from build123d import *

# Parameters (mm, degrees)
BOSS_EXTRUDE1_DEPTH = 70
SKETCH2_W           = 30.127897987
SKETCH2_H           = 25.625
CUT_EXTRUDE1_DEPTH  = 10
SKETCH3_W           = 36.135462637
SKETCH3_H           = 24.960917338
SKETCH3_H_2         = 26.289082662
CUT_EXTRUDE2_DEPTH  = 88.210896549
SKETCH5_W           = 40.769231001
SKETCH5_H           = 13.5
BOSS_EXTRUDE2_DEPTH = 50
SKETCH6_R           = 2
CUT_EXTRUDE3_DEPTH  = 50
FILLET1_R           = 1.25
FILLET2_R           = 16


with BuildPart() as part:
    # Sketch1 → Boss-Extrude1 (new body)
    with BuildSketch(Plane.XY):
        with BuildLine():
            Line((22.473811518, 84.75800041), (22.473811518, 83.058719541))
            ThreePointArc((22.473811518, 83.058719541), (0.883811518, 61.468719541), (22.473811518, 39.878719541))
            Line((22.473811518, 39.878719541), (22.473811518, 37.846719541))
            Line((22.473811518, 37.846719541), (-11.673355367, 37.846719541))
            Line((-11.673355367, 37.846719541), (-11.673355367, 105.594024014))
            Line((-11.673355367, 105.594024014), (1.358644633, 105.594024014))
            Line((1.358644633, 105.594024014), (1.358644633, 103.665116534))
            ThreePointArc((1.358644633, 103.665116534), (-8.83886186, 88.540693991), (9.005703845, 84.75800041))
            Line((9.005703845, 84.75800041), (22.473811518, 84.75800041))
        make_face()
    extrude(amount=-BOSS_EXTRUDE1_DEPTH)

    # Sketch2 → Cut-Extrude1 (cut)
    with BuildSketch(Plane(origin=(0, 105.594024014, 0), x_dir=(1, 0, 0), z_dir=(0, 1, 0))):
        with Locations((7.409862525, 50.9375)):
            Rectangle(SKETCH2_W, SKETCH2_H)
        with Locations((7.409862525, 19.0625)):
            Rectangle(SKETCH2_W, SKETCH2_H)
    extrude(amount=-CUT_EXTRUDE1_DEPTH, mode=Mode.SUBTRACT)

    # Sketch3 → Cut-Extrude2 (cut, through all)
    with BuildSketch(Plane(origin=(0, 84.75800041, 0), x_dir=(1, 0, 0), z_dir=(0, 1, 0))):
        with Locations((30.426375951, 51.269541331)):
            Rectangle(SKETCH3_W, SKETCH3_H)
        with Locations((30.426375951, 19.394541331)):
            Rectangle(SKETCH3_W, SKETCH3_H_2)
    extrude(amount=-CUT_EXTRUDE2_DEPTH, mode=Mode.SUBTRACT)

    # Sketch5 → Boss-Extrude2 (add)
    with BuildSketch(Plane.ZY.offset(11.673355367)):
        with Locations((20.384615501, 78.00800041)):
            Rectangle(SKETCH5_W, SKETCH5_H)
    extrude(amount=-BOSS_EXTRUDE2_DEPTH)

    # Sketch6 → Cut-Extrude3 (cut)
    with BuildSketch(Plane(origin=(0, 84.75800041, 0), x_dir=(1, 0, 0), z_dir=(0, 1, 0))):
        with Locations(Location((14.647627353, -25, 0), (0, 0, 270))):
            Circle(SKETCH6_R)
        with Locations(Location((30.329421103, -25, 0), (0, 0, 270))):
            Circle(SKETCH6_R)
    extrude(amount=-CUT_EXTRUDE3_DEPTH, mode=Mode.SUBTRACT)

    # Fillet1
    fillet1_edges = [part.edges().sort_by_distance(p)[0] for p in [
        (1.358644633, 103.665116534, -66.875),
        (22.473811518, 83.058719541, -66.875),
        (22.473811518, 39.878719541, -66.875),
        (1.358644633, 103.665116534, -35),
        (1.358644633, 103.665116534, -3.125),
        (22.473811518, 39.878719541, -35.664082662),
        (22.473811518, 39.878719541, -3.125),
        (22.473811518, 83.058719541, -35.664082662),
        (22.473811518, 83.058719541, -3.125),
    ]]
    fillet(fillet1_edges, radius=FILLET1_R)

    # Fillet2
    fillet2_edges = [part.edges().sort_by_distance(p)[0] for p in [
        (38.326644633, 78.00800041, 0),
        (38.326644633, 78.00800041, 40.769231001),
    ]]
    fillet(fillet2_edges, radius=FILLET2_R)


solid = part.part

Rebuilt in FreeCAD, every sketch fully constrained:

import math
import FreeCAD as App
import Part
import Sketcher
Q = App.Units.Quantity


def edges_at(feature, points):
    """Names of the edges that pass closest to the given points."""
    edges = feature.Shape.Edges
    near = lambda p: min(range(len(edges)), key=lambda i: edges[i].distToShape(Part.Vertex(*p))[0])
    return sorted({f"Edge{near(p) + 1}" for p in points})

doc = App.newDocument("Part")
body = doc.addObject("PartDesign::Body", "Body")

# Sketch on XY plane
sketch1 = body.newObject("Sketcher::SketchObject", "Sketch")
sketch1.AttachmentSupport = (doc.getObject("XY_Plane"), [""])
sketch1.MapMode = "FlatFace"
sketch1.addGeometry([
    Part.LineSegment(App.Vector(22.5, 83.1, 0), App.Vector(22.5, 84.8, 0)),  # 0
    Part.LineSegment(App.Vector(22.5, 84.8, 0), App.Vector(9, 84.8, 0)),  # 1
    Part.ArcOfCircle(Part.Circle(App.Vector(1.4, 92.7, 0), App.Vector(0, 0, 1), 11), math.radians(90), math.radians(314)),  # 2
    Part.LineSegment(App.Vector(1.4, 103.7, 0), App.Vector(1.4, 105.6, 0)),  # 3
    Part.LineSegment(App.Vector(1.4, 105.6, 0), App.Vector(-11.7, 105.6, 0)),  # 4
    Part.LineSegment(App.Vector(-11.7, 105.6, 0), App.Vector(-11.7, 37.8, 0)),  # 5
    Part.LineSegment(App.Vector(-11.7, 37.8, 0), App.Vector(22.5, 37.8, 0)),  # 6
    Part.LineSegment(App.Vector(22.5, 37.8, 0), App.Vector(22.5, 39.9, 0)),  # 7
    Part.ArcOfCircle(Part.Circle(App.Vector(22.5, 61.5, 0), App.Vector(0, 0, 1), 21.6), math.radians(90), math.radians(270)),  # 8
], False)
sketch1.addConstraint([
    Sketcher.Constraint("Coincident", 0, 2, 1, 1),
    Sketcher.Constraint("Coincident", 1, 2, 2, 2),
    Sketcher.Constraint("Coincident", 2, 1, 3, 1),
    Sketcher.Constraint("Coincident", 3, 2, 4, 1),
    Sketcher.Constraint("Coincident", 4, 2, 5, 1),
    Sketcher.Constraint("Coincident", 5, 2, 6, 1),
    Sketcher.Constraint("Coincident", 6, 2, 7, 1),
    Sketcher.Constraint("Coincident", 7, 2, 8, 2),
    Sketcher.Constraint("Coincident", 8, 1, 0, 1),
    Sketcher.Constraint("Vertical", 0),
    Sketcher.Constraint("Horizontal", 1),
    Sketcher.Constraint("Vertical", 3),
    Sketcher.Constraint("Horizontal", 4),
    Sketcher.Constraint("Vertical", 5),
    Sketcher.Constraint("Horizontal", 6),
    Sketcher.Constraint("Vertical", 7),
    Sketcher.Constraint("Vertical", 8, 3, 0, 2),
    Sketcher.Constraint("Vertical", 0, 2, 6, 2),
    Sketcher.Constraint("Radius", 2, Q("11 mm")),
    Sketcher.Constraint("Radius", 8, Q("21.59 mm")),
    Sketcher.Constraint("DistanceX", 4, 2, 4, 1, Q("13.032 mm")),
    Sketcher.Constraint("DistanceY", 7, 1, 7, 2, Q("2.032 mm")),
    Sketcher.Constraint("DistanceY", -1, 1, 0, 2, Q("84.758 mm")),
    Sketcher.Constraint("DistanceX", 4, 2, 2, 3, Q("13.032 mm")),
    Sketcher.Constraint("DistanceY", 0, 1, 0, 2, Q("1.699281 mm")),
    Sketcher.Constraint("DistanceX", 1, 2, 1, 1, Q("13.468108 mm")),
    Sketcher.Constraint("DistanceX", 6, 1, 6, 2, Q("34.147167 mm")),
    Sketcher.Constraint("DistanceY", 3, 1, 3, 2, Q("1.928907 mm")),
    Sketcher.Constraint("DistanceX", -1, 1, 8, 3, Q("22.473812 mm")),
])
pad1 = body.newObject("PartDesign::Pad", "Pad")
pad1.Profile = sketch1
pad1.Length = 70
pad1.Reversed = True

# Sketch on XZ plane
sketch2 = body.newObject("Sketcher::SketchObject", "Sketch001")
sketch2.AttachmentSupport = (doc.getObject("XZ_Plane"), [""])
sketch2.MapMode = "FlatFace"
sketch2.AttachmentOffset = App.Placement(App.Vector(0, 0, -105.594024), App.Rotation())
sketch2.addGeometry([
    Part.LineSegment(App.Vector(-8, -64, 0), App.Vector(-8, -38, 0)),  # 0
    Part.LineSegment(App.Vector(-8, -38, 0), App.Vector(22, -38, 0)),  # 1
    Part.LineSegment(App.Vector(22, -38, 0), App.Vector(22, -64, 0)),  # 2
    Part.LineSegment(App.Vector(22, -64, 0), App.Vector(-8, -64, 0)),  # 3
    Part.LineSegment(App.Vector(-8, -32, 0), App.Vector(-8, -6, 0)),  # 4
    Part.LineSegment(App.Vector(-8, -6, 0), App.Vector(22, -6, 0)),  # 5
    Part.LineSegment(App.Vector(22, -6, 0), App.Vector(22, -32, 0)),  # 6
    Part.LineSegment(App.Vector(22, -32, 0), App.Vector(-8, -32, 0)),  # 7
], False)
sketch2.addConstraint([
    Sketcher.Constraint("Coincident", 0, 2, 1, 1),
    Sketcher.Constraint("Coincident", 1, 2, 2, 1),
    Sketcher.Constraint("Coincident", 2, 2, 3, 1),
    Sketcher.Constraint("Coincident", 3, 2, 0, 1),
    Sketcher.Constraint("Coincident", 4, 2, 5, 1),
    Sketcher.Constraint("Coincident", 5, 2, 6, 1),
    Sketcher.Constraint("Coincident", 6, 2, 7, 1),
    Sketcher.Constraint("Coincident", 7, 2, 4, 1),
    Sketcher.Constraint("Vertical", 0),
    Sketcher.Constraint("Horizontal", 1),
    Sketcher.Constraint("Vertical", 2),
    Sketcher.Constraint("Horizontal", 3),
    Sketcher.Constraint("Vertical", 4),
    Sketcher.Constraint("Horizontal", 5),
    Sketcher.Constraint("Vertical", 6),
    Sketcher.Constraint("Horizontal", 7),
    Sketcher.Constraint("Vertical", 3, 2, 4, 2),
    Sketcher.Constraint("Vertical", 2, 2, 5, 2),
    Sketcher.Constraint("Equal", 2, 4),
    Sketcher.Constraint("DistanceY", 3, 2, 4, 2, Q("57.5 mm")),
    Sketcher.Constraint("DistanceY", 0, 1, 0, 2, Q("25.625 mm")),
    Sketcher.Constraint("DistanceY", 2, 2, -1, 1, Q("63.75 mm")),
    Sketcher.Constraint("DistanceX", 1, 1, 1, 2, Q("30.127898 mm")),
    Sketcher.Constraint("DistanceX", -1, 1, 1, 2, Q("22.473812 mm")),
])
pocket1 = body.newObject("PartDesign::Pocket", "Pocket")
pocket1.Profile = sketch2
pocket1.Length = 10
pocket1.Reversed = True

# Sketch on XZ plane
sketch3 = body.newObject("Sketcher::SketchObject", "Sketch002")
sketch3.AttachmentSupport = (doc.getObject("XZ_Plane"), [""])
sketch3.MapMode = "FlatFace"
sketch3.AttachmentOffset = App.Placement(App.Vector(0, 0, -84.758), App.Rotation())
sketch3.addGeometry([
    Part.LineSegment(App.Vector(12, -64, 0), App.Vector(12, -39, 0)),  # 0
    Part.LineSegment(App.Vector(12, -39, 0), App.Vector(48, -39, 0)),  # 1
    Part.LineSegment(App.Vector(48, -39, 0), App.Vector(48, -64, 0)),  # 2
    Part.LineSegment(App.Vector(48, -64, 0), App.Vector(12, -64, 0)),  # 3
    Part.LineSegment(App.Vector(12, -33, 0), App.Vector(12, -6, 0)),  # 4
    Part.LineSegment(App.Vector(12, -6, 0), App.Vector(48, -6, 0)),  # 5
    Part.LineSegment(App.Vector(48, -6, 0), App.Vector(48, -33, 0)),  # 6
    Part.LineSegment(App.Vector(48, -33, 0), App.Vector(12, -33, 0)),  # 7
], False)
sketch3.addConstraint([
    Sketcher.Constraint("Coincident", 0, 2, 1, 1),
    Sketcher.Constraint("Coincident", 1, 2, 2, 1),
    Sketcher.Constraint("Coincident", 2, 2, 3, 1),
    Sketcher.Constraint("Coincident", 3, 2, 0, 1),
    Sketcher.Constraint("Coincident", 4, 2, 5, 1),
    Sketcher.Constraint("Coincident", 5, 2, 6, 1),
    Sketcher.Constraint("Coincident", 6, 2, 7, 1),
    Sketcher.Constraint("Coincident", 7, 2, 4, 1),
    Sketcher.Constraint("Vertical", 0),
    Sketcher.Constraint("Horizontal", 1),
    Sketcher.Constraint("Vertical", 2),
    Sketcher.Constraint("Horizontal", 3),
    Sketcher.Constraint("Vertical", 4),
    Sketcher.Constraint("Horizontal", 5),
    Sketcher.Constraint("Vertical", 6),
    Sketcher.Constraint("Horizontal", 7),
    Sketcher.Constraint("Vertical", 3, 2, 4, 2),
    Sketcher.Constraint("Vertical", 2, 2, 5, 2),
    Sketcher.Constraint("DistanceY", 3, 2, 4, 2, Q("57.5 mm")),
    Sketcher.Constraint("DistanceY", 2, 2, -1, 1, Q("63.75 mm")),
    Sketcher.Constraint("DistanceY", 1, 2, 6, 2, Q("6.25 mm")),
    Sketcher.Constraint("DistanceX", 1, 1, 1, 2, Q("36.135463 mm")),
    Sketcher.Constraint("DistanceY", 0, 1, 0, 2, Q("24.960917 mm")),
    Sketcher.Constraint("DistanceX", -1, 1, 0, 2, Q("12.358645 mm")),
])
pocket2 = body.newObject("PartDesign::Pocket", "Pocket001")
pocket2.Profile = sketch3
pocket2.Type = "ThroughAll"
pocket2.Reversed = True

# Sketch on YZ plane
sketch4 = body.newObject("Sketcher::SketchObject", "Sketch003")
sketch4.AttachmentSupport = (doc.getObject("YZ_Plane"), [""])
sketch4.MapMode = "FlatFace"
sketch4.AttachmentOffset = App.Placement(App.Vector(0, 0, -11.673355), App.Rotation())
sketch4.addGeometry([
    Part.LineSegment(App.Vector(85, 0, 0), App.Vector(71, 0, 0)),
    Part.LineSegment(App.Vector(71, 0, 0), App.Vector(71, 41, 0)),
    Part.LineSegment(App.Vector(71, 41, 0), App.Vector(85, 41, 0)),
    Part.LineSegment(App.Vector(85, 41, 0), App.Vector(85, 0, 0)),
], False)
sketch4.addConstraint([
    Sketcher.Constraint("Coincident", 0, 2, 1, 1),
    Sketcher.Constraint("Coincident", 1, 2, 2, 1),
    Sketcher.Constraint("Coincident", 2, 2, 3, 1),
    Sketcher.Constraint("Coincident", 3, 2, 0, 1),
    Sketcher.Constraint("Horizontal", 0),
    Sketcher.Constraint("Vertical", 1),
    Sketcher.Constraint("Horizontal", 2),
    Sketcher.Constraint("Vertical", 3),
    Sketcher.Constraint("PointOnObject", 0, 2, -1),
    Sketcher.Constraint("DistanceX", 0, 2, 0, 1, Q("13.5 mm")),
    Sketcher.Constraint("DistanceX", -1, 1, 0, 2, Q("71.258 mm")),
    Sketcher.Constraint("DistanceY", 1, 1, 1, 2, Q("40.769231 mm")),
])
pad2 = body.newObject("PartDesign::Pad", "Pad001")
pad2.Profile = sketch4
pad2.Length = 50

# Sketch on XZ plane
sketch5 = body.newObject("Sketcher::SketchObject", "Sketch004")
sketch5.AttachmentSupport = (doc.getObject("XZ_Plane"), [""])
sketch5.MapMode = "FlatFace"
sketch5.AttachmentOffset = App.Placement(App.Vector(0, 0, -84.758), App.Rotation())
sketch5.addGeometry([
    Part.Circle(App.Vector(14.6, 25, 0), App.Vector(0, 0, 1), 2),
    Part.Circle(App.Vector(30.3, 25, 0), App.Vector(0, 0, 1), 2),
], False)
sketch5.addConstraint([
    Sketcher.Constraint("Equal", 0, 1),
    Sketcher.Constraint("Horizontal", 0, 3, 1, 3),
    Sketcher.Constraint("Diameter", 0, Q("4 mm")),
    Sketcher.Constraint("DistanceY", -1, 1, 0, 3, Q("25 mm")),
    Sketcher.Constraint("DistanceX", -1, 1, 1, 3, Q("30.329421 mm")),
    Sketcher.Constraint("DistanceX", -1, 1, 0, 3, Q("14.647627 mm")),
])
pocket3 = body.newObject("PartDesign::Pocket", "Pocket002")
pocket3.Profile = sketch5
pocket3.Length = 50
pocket3.Reversed = True
doc.recompute()

fillet = body.newObject("PartDesign::Fillet", "Fillet")
fillet.Base = (pocket3, edges_at(pocket3, [
    (1.359, 103.665, -66.875),
    (22.474, 83.059, -66.875),
    (22.474, 39.879, -66.875),
    (1.359, 103.665, -35),
    (1.359, 103.665, -3.125),
    (22.474, 39.879, -35.664),
    (22.474, 39.879, -3.125),
    (22.474, 83.059, -35.664),
    (22.474, 83.059, -3.125),
]))
fillet.Radius = 1.25
doc.recompute()

fillet2 = body.newObject("PartDesign::Fillet", "Fillet001")
fillet2.Base = (fillet, edges_at(fillet, [(38.327, 78.008, 0), (38.327, 78.008, 40.769)]))
fillet2.Radius = 16

doc.recompute()
